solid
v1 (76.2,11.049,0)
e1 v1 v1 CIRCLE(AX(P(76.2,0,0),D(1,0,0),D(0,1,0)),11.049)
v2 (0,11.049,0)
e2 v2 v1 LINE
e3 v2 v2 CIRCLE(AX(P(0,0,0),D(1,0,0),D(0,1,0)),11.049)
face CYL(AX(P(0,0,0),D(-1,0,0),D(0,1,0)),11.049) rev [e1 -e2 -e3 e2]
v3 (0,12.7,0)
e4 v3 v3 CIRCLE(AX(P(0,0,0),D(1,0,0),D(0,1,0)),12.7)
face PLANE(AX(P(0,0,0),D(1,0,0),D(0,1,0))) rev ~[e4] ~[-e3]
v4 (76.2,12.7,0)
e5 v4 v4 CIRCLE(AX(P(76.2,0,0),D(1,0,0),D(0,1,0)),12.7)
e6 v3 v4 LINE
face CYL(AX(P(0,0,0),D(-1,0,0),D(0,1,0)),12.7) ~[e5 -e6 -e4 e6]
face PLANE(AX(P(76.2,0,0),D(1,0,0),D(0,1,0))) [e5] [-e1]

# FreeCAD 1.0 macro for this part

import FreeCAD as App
import Part
import Sketcher
from FreeCAD import Vector
Q = App.Units.Quantity

doc = App.newDocument("Part")
params = doc.addObject("Spreadsheet::Sheet", "Params")
for row, (alias, value) in enumerate([
    ("sketch1_diameter", "1 in"),
    ("sketch1_diameter2", "0.87 in"),
    ("pad1_length", "3 in"),
], start=1):
    params.set(f"A{row}", alias)
    params.set(f"B{row}", "=" + value)
    params.setAlias(f"B{row}", alias)

body = doc.addObject("PartDesign::Body", "Body")

# Sketch on YZ plane
sketch1 = body.newObject("Sketcher::SketchObject", "Sketch")
sketch1.AttachmentSupport = (doc.getObject("YZ_Plane"), [""])
sketch1.MapMode = "FlatFace"
sketch1.addGeometry([
    Part.Circle(Vector(0, 0, 0), Vector(0, 0, 1), 13),
    Part.Circle(Vector(0, 0, 0), Vector(0, 0, 1), 11),
], False)
sketch1.addConstraint([
    Sketcher.Constraint("Coincident", 0, 3, -1, 1),
    Sketcher.Constraint("Coincident", 1, 3, -1, 1),
    Sketcher.Constraint("Diameter", 0, Q("1 in")),
    Sketcher.Constraint("Diameter", 1, Q("0.87 in")),
])
sketch1.setExpression("Constraints[2]", "Params.sketch1_diameter")
sketch1.setExpression("Constraints[3]", "Params.sketch1_diameter2")
pad1 = body.newObject("PartDesign::Pad", "Pad")
pad1.Profile = sketch1
pad1.setExpression("Length", "Params.pad1_length")

doc.recompute()
